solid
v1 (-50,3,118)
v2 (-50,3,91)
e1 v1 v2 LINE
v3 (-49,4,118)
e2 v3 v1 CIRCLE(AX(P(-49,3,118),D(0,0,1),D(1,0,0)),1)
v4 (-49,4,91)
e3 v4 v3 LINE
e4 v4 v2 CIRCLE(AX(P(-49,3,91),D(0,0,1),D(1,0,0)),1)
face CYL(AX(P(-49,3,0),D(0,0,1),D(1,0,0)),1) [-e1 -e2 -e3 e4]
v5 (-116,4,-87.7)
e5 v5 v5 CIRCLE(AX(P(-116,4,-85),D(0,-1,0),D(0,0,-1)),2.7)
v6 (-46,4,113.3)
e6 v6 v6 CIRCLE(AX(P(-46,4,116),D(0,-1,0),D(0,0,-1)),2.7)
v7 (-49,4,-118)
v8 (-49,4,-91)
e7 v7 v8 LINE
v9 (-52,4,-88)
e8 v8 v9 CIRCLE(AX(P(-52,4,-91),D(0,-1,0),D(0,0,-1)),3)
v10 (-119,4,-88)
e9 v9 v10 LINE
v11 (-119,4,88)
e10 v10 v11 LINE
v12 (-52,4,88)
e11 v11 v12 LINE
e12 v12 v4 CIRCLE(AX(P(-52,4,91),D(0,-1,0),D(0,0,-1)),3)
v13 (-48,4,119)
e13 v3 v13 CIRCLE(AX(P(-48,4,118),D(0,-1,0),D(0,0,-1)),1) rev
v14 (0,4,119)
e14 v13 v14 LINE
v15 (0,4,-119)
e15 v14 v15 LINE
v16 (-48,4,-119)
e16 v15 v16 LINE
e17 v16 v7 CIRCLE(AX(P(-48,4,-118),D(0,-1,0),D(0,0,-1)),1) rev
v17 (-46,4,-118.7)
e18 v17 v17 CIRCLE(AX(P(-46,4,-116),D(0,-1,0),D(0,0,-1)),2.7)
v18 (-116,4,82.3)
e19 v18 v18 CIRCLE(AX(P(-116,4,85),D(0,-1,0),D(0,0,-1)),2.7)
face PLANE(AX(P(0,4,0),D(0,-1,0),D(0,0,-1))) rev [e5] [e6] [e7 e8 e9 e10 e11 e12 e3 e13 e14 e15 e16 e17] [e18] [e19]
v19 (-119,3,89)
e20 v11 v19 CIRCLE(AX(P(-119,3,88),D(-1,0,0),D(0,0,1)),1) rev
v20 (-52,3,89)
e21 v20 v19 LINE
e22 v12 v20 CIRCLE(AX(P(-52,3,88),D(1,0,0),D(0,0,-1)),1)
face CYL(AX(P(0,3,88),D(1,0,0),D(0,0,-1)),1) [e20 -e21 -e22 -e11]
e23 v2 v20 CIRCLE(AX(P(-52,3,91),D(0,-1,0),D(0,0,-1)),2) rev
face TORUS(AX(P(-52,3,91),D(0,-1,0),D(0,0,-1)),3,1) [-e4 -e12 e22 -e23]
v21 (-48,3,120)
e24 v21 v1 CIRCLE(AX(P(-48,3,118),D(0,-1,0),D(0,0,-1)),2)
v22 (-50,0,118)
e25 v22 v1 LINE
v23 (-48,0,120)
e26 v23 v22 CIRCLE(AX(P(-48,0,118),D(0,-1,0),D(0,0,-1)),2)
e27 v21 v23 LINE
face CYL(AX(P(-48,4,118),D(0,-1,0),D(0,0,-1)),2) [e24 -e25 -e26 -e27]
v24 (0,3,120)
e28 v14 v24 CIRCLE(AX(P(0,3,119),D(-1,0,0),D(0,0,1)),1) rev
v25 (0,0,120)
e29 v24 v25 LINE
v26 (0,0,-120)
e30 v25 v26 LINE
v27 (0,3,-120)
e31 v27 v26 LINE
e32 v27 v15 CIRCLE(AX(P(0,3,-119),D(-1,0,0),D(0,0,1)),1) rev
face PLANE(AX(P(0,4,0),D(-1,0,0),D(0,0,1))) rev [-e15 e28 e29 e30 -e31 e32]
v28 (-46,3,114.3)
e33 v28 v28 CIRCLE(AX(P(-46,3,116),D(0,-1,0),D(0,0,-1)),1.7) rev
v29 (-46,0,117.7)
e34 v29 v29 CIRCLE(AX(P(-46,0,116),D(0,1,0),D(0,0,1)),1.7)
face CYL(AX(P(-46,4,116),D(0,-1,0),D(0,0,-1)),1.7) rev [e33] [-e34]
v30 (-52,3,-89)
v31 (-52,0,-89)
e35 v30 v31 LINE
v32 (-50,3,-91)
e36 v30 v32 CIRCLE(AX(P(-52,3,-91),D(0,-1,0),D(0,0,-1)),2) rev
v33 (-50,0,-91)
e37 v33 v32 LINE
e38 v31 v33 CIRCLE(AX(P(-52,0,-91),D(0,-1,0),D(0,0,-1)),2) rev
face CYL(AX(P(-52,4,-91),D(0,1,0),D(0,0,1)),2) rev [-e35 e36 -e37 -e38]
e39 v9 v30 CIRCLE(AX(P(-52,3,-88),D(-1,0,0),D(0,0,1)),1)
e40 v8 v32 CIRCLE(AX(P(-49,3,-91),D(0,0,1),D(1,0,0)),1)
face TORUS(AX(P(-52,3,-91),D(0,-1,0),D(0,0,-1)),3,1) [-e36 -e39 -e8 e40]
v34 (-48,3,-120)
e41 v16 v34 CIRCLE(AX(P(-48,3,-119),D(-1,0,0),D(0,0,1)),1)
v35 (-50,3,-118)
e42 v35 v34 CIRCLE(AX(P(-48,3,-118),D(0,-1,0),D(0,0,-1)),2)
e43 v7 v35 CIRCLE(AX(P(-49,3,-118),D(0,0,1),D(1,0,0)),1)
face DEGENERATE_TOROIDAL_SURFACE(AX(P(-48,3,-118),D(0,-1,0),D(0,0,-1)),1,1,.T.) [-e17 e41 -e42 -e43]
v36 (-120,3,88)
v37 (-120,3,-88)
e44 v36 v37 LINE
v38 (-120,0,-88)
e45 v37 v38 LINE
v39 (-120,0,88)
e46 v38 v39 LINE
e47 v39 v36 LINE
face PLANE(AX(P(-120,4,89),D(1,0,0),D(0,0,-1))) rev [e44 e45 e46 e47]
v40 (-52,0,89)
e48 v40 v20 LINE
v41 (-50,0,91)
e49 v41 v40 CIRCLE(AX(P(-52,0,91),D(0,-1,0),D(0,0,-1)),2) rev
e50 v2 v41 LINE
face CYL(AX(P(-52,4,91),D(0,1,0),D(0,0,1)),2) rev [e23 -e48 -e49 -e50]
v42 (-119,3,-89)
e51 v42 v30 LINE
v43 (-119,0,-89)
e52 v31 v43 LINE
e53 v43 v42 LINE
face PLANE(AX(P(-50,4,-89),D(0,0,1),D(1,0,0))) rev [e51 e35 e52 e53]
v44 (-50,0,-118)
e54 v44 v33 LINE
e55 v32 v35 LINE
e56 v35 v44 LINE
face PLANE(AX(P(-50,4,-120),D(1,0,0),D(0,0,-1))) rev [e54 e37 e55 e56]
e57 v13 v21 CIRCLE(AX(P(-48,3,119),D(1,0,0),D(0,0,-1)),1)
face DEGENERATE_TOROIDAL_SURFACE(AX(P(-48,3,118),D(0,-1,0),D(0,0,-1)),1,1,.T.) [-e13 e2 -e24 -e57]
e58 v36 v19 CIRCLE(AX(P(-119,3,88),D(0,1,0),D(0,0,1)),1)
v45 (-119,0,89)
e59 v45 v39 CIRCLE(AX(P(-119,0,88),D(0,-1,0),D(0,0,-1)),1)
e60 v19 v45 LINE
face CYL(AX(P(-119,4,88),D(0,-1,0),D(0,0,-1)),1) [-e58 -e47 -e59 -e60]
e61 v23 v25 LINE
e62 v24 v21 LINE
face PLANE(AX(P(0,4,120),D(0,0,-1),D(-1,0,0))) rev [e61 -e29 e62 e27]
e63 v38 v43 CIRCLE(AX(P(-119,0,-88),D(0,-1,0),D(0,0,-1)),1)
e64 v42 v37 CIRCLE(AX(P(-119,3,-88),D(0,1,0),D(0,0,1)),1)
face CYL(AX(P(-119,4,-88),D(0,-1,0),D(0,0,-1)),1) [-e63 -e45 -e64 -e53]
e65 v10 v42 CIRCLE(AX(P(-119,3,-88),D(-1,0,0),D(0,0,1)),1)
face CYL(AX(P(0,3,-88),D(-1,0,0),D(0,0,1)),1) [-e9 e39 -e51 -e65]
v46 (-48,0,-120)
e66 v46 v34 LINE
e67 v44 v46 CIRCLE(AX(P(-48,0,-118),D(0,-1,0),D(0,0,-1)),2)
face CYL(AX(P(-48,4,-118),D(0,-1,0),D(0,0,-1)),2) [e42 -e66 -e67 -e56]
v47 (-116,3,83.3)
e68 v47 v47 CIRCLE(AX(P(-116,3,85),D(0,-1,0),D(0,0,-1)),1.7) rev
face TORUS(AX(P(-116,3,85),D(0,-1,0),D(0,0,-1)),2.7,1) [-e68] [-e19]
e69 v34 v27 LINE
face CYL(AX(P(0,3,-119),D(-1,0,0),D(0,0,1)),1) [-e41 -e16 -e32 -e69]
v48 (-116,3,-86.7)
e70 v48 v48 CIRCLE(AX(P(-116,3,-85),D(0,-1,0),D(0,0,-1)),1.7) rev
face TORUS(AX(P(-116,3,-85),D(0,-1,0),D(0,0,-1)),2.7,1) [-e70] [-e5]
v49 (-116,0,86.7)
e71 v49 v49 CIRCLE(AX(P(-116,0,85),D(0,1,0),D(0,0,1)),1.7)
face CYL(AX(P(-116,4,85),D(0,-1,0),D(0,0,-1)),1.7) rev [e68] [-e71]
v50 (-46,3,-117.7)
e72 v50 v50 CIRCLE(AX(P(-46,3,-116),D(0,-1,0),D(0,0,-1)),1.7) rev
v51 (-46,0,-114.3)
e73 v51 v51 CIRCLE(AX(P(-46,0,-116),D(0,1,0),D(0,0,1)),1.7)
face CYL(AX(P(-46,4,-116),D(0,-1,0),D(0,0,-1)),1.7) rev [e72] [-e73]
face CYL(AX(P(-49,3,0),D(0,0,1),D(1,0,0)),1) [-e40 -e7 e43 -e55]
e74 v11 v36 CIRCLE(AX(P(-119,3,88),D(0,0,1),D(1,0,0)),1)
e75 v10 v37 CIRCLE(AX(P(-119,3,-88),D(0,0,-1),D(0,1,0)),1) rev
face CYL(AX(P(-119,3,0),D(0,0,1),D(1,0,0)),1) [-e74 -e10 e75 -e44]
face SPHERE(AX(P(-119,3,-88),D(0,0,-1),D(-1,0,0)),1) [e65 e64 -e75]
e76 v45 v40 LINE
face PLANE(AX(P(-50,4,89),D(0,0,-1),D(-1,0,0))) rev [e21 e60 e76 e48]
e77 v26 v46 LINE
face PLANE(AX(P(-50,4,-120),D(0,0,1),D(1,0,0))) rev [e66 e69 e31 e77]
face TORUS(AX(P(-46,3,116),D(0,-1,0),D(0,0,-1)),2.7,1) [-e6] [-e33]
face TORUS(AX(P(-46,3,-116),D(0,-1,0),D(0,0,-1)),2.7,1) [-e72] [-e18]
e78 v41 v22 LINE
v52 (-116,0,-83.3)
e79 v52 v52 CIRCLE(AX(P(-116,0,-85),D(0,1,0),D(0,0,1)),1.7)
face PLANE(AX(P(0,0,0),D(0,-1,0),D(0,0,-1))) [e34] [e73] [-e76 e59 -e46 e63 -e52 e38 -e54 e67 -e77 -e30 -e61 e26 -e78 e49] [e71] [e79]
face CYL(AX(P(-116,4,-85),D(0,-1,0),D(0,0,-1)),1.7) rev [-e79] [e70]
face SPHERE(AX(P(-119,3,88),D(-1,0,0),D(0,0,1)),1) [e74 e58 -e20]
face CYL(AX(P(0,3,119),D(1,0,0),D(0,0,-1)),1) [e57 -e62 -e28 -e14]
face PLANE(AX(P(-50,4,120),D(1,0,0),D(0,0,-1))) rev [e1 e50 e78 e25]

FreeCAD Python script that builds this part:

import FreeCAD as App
import Part
import Sketcher

V = App.Vector


def edges_at(feature, points):
    """Names of the edges that pass closest to the given points."""
    edges = feature.Shape.Edges
    near = lambda p: min(range(len(edges)), key=lambda i: edges[i].distToShape(Part.Vertex(*p))[0])
    return sorted({f"Edge{near(p) + 1}" for p in points})


def add_polygon(sketch, points):
    """Adds a closed chain of lines whose ends are joined by coincident constraints."""
    first, n = sketch.GeometryCount, len(points)
    for a, b in zip(points, points[1:] + points[:1]):
        sketch.addGeometry(Part.LineSegment(App.Vector(*a, 0), App.Vector(*b, 0)), False)
    for i in range(n):
        sketch.addConstraint(Sketcher.Constraint("Coincident", first + i, 2, first + (i + 1) % n, 1))

doc = App.newDocument("Part")
body = doc.addObject("PartDesign::Body", "Body")

# Sketch on XZ plane
sketch1 = body.newObject("Sketcher::SketchObject", "Sketch")
sketch1.AttachmentSupport = (doc.getObject("XZ_Plane"), [""])
sketch1.MapMode = "FlatFace"
add_polygon(sketch1, [(0, -120), (-50, -120), (-50, -89), (-120, -89), (-120, 89), (-50, 89), (-50, 120), (0, 120)])  # lines 0-7
sketch1.addGeometry(Part.Circle(V(-116, 85, 0), V(0, 0, 1), 1.7), False)  # 8
sketch1.addGeometry(Part.Circle(V(-46, 116, 0), V(0, 0, 1), 1.7), False)  # 9
sketch1.addGeometry(Part.Circle(V(-116, -85, 0), V(0, 0, 1), 1.7), False)  # 10
sketch1.addGeometry(Part.Circle(V(-46, -116, 0), V(0, 0, 1), 1.7), False)  # 11
sketch1.addConstraint(Sketcher.Constraint("Horizontal", 0))
sketch1.addConstraint(Sketcher.Constraint("Vertical", 1))
sketch1.addConstraint(Sketcher.Constraint("Horizontal", 2))
sketch1.addConstraint(Sketcher.Constraint("Vertical", 3))
sketch1.addConstraint(Sketcher.Constraint("Horizontal", 4))
sketch1.addConstraint(Sketcher.Constraint("Vertical", 5))
sketch1.addConstraint(Sketcher.Constraint("Horizontal", 6))
sketch1.addConstraint(Sketcher.Constraint("Vertical", 7))
sketch1.addConstraint(Sketcher.Constraint("Equal", 8, 9))
sketch1.addConstraint(Sketcher.Constraint("Equal", 9, 10))
sketch1.addConstraint(Sketcher.Constraint("Equal", 10, 11))
sketch1.addConstraint(Sketcher.Constraint("Symmetric", 6, 2, 7, 2, -1, 1))
sketch1.addConstraint(Sketcher.Constraint("Symmetric", 8, 3, 10, 3, -1))
sketch1.addConstraint(Sketcher.Constraint("Symmetric", 9, 3, 11, 3, -1))
sketch1.addConstraint(Sketcher.Constraint("Symmetric", 1, 2, 4, 2, -1))
sketch1.addConstraint(Sketcher.Constraint("Diameter", 8, 3.4))
sketch1.addConstraint(Sketcher.Constraint("DistanceX", 0, 2, 0, 1, 50.0))
sketch1.addConstraint(Sketcher.Constraint("DistanceX", 2, 2, 2, 1, 70.0))
sketch1.addConstraint(Sketcher.Constraint("DistanceY", 1, 1, 1, 2, 31.0))
sketch1.addConstraint(Sketcher.Constraint("DistanceY", 3, 1, 3, 2, 178.0))
sketch1.addConstraint(Sketcher.Constraint("DistanceX", 8, 3, -1, 1, 116.0))
sketch1.addConstraint(Sketcher.Constraint("DistanceY", -1, 1, 8, 3, 85.0))
sketch1.addConstraint(Sketcher.Constraint("DistanceX", 9, 3, -1, 1, 46.0))
sketch1.addConstraint(Sketcher.Constraint("DistanceY", -1, 1, 9, 3, 116.0))
pad1 = body.newObject("PartDesign::Pad", "Pad")
pad1.Profile = sketch1
pad1.Length = 4
pad1.Reversed = True
doc.recompute()

fillet = body.newObject("PartDesign::Fillet", "Fillet")
fillet.Base = (pad1, edges_at(pad1, [
    (-50, 2, 120),
    (-50, 2, 89),
    (-50, 2, -89),
    (-50, 2, -120),
]))
fillet.Radius = 2
doc.recompute()

fillet2 = body.newObject("PartDesign::Fillet", "Fillet001")
fillet2.Base = (fillet, edges_at(fillet, [
    (-24, 4, -120),
    (-120, 2, 89),
    (-120, 2, -89),
    (-120, 4, 0),
    (-46, 4, 114.3),
    (-116, 4, 83.3),
    (-86, 4, 89),
    (-116, 4, -86.7),
    (-46, 4, -117.7),
    (-86, 4, -89),
    (-50, 4, -104.5),
    (-50, 4, 104.5),
    (-24, 4, 120),
    (-49.414, 4, 119.414),
    (-49.414, 4, -119.414),
    (-50.586, 4, -89.586),
    (-50.586, 4, 89.586),
]))
fillet2.Radius = 1

doc.recompute()
